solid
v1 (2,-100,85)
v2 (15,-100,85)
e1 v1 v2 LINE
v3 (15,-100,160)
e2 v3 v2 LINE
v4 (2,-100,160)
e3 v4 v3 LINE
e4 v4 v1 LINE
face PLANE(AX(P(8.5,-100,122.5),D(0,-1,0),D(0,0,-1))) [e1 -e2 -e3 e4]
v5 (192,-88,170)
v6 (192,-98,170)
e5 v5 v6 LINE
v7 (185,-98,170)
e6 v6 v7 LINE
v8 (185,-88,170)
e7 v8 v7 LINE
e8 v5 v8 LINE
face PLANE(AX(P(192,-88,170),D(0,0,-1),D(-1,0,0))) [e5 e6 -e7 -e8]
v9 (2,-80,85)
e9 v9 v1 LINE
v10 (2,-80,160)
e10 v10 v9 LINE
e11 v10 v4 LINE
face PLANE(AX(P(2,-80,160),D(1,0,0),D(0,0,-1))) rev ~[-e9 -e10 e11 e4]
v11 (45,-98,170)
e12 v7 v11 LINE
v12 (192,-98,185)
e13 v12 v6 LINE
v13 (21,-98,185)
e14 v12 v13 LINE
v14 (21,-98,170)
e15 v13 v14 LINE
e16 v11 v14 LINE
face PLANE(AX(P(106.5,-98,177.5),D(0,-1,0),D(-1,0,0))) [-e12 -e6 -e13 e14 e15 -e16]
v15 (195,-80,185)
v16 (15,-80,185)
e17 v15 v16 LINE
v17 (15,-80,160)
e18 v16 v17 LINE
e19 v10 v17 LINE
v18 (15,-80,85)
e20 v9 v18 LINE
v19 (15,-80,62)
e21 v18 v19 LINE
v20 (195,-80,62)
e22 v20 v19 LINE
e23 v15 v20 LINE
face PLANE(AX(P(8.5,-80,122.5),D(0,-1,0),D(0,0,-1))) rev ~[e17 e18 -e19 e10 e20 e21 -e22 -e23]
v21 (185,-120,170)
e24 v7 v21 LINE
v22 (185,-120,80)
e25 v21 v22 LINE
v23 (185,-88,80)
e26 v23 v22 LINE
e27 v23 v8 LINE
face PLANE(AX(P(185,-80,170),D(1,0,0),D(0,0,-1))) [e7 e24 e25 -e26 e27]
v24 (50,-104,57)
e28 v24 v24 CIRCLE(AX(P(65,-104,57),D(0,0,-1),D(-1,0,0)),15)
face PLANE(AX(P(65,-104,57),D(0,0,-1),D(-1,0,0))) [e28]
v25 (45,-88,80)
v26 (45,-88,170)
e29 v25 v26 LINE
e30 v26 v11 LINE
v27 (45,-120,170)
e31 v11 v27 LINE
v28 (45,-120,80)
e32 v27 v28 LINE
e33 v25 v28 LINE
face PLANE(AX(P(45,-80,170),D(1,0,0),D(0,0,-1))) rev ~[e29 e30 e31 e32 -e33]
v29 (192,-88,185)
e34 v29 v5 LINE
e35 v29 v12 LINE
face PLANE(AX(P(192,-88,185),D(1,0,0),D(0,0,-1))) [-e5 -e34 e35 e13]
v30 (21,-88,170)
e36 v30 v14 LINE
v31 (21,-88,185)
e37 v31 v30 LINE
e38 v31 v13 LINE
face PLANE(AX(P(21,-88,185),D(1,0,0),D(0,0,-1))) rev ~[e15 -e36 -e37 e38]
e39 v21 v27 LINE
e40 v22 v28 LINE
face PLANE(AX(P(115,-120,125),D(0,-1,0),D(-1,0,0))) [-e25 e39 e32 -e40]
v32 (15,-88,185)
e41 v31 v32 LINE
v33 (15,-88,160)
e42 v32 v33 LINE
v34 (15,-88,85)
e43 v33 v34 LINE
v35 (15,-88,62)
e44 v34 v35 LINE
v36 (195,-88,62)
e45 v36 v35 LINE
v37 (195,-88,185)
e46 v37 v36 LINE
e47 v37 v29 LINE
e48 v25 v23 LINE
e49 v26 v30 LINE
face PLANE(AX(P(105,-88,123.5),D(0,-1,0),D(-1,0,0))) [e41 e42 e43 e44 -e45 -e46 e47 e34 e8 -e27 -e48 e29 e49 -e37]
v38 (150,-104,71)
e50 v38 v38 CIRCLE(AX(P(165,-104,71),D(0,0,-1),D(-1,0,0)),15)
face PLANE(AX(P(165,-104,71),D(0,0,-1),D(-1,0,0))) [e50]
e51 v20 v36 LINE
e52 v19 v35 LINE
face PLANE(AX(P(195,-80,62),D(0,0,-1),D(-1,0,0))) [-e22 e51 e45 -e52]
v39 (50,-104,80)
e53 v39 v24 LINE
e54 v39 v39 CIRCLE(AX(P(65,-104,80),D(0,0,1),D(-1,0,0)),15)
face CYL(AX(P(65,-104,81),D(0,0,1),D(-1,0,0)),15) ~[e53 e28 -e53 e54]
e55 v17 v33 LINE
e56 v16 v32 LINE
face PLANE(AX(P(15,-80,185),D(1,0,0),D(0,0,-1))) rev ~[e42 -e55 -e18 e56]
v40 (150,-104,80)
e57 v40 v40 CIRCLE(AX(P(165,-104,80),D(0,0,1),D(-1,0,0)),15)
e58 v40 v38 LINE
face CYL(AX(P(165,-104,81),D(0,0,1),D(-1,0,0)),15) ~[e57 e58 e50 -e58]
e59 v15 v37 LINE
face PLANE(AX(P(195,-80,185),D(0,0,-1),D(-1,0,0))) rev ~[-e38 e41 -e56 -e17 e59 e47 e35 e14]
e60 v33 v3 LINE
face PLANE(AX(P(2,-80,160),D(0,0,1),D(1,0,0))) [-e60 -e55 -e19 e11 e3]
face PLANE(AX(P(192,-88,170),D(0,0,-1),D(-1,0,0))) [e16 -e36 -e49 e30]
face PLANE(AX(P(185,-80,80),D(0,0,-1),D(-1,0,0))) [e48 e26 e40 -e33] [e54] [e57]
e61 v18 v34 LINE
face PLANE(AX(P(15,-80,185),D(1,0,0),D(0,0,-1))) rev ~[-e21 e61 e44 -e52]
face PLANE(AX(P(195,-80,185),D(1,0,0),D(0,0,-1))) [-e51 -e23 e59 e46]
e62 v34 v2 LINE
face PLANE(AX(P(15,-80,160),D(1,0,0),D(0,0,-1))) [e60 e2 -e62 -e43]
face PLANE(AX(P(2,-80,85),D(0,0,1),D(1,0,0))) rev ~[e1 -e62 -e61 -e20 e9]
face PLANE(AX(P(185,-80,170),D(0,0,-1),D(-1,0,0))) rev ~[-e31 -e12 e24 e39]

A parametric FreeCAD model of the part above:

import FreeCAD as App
import Part
import Sketcher

V = App.Vector
Q = App.Units.Quantity

doc = App.newDocument("Part")
body = doc.addObject("PartDesign::Body", "Body")

# Sketch on XY plane
sketch1 = body.newObject("Sketcher::SketchObject", "Sketch")
sketch1.AttachmentSupport = (doc.getObject("XY_Plane"), [""])
sketch1.MapMode = "FlatFace"
sketch1.addGeometry([
    Part.LineSegment(V(0, 123, 0), V(0, 0, 0)),
    Part.LineSegment(V(0, 0, 0), V(180, 0, 0)),
    Part.LineSegment(V(180, 0, 0), V(180, 123, 0)),
    Part.LineSegment(V(180, 123, 0), V(0, 123, 0)),
], False)
sketch1.addConstraint([
    Sketcher.Constraint("Coincident", 0, 2, 1, 1),
    Sketcher.Constraint("Coincident", 1, 2, 2, 1),
    Sketcher.Constraint("Coincident", 2, 2, 3, 1),
    Sketcher.Constraint("Coincident", 3, 2, 0, 1),
    Sketcher.Constraint("Vertical", 0),
    Sketcher.Constraint("Horizontal", 1),
    Sketcher.Constraint("Vertical", 2),
    Sketcher.Constraint("Horizontal", 3),
    Sketcher.Constraint("Coincident", 0, 2, -1, 1),
    Sketcher.Constraint("DistanceX", 1, 1, 1, 2, Q("180 mm")),
    Sketcher.Constraint("DistanceY", 0, 2, 0, 1, Q("123 mm")),
])
pad1 = body.newObject("PartDesign::Pad", "Pad")
pad1.Profile = sketch1
pad1.Length = 8
body2 = doc.addObject("PartDesign::Body", "Body001")

# Sketch on XY plane
sketch2 = body2.newObject("Sketcher::SketchObject", "Sketch001")
sketch2.AttachmentSupport = (doc.getObject("XY_Plane001"), [""])
sketch2.MapMode = "FlatFace"
sketch2.addGeometry([
    Part.LineSegment(V(10, 105, 0), V(10, 15, 0)),
    Part.LineSegment(V(10, 15, 0), V(150, 15, 0)),
    Part.LineSegment(V(150, 15, 0), V(150, 105, 0)),
    Part.LineSegment(V(150, 105, 0), V(10, 105, 0)),
], False)
sketch2.addConstraint([
    Sketcher.Constraint("Coincident", 0, 2, 1, 1),
    Sketcher.Constraint("Coincident", 1, 2, 2, 1),
    Sketcher.Constraint("Coincident", 2, 2, 3, 1),
    Sketcher.Constraint("Coincident", 3, 2, 0, 1),
    Sketcher.Constraint("Vertical", 0),
    Sketcher.Constraint("Horizontal", 1),
    Sketcher.Constraint("Vertical", 2),
    Sketcher.Constraint("Horizontal", 3),
    Sketcher.Constraint("DistanceX", 1, 1, 1, 2, Q("140 mm")),
    Sketcher.Constraint("DistanceY", 0, 2, 0, 1, Q("90 mm")),
    Sketcher.Constraint("DistanceX", -1, 1, 0, 2, Q("10 mm")),
    Sketcher.Constraint("DistanceY", -1, 1, 0, 2, Q("15 mm")),
])
pad2 = body2.newObject("PartDesign::Pad", "Pad001")
pad2.Profile = sketch2
pad2.Length = 40
body3 = doc.addObject("PartDesign::Body", "Body002")

# Sketch on XZ plane
sketch3 = body3.newObject("Sketcher::SketchObject", "Sketch002")
sketch3.AttachmentSupport = (doc.getObject("XZ_Plane002"), [""])
sketch3.MapMode = "FlatFace"
sketch3.AttachmentOffset = App.Placement(V(0, 0, -104), App.Rotation())
sketch3.addGeometry(Part.Circle(V(30, 24, 0), V(0, 0, 1), 15), False)
sketch3.addConstraint([
    Sketcher.Constraint("Diameter", 0, Q("30 mm")),
    Sketcher.Constraint("DistanceX", -1, 1, 0, 3, Q("30 mm")),
    Sketcher.Constraint("DistanceY", -1, 1, 0, 3, Q("24 mm")),
])
pad3 = body3.newObject("PartDesign::Pad", "Pad002")
pad3.Profile = sketch3
pad3.Length = 10
pad3.Reversed = True
body4 = doc.addObject("PartDesign::Body", "Body003")

# Sketch on XZ plane
sketch4 = body4.newObject("Sketcher::SketchObject", "Sketch003")
sketch4.AttachmentSupport = (doc.getObject("XZ_Plane003"), [""])
sketch4.MapMode = "FlatFace"
sketch4.AttachmentOffset = App.Placement(V(0, 0, -104), App.Rotation())
sketch4.addGeometry(Part.Circle(V(130, 24, 0), V(0, 0, 1), 15), False)
sketch4.addConstraint([
    Sketcher.Constraint("Diameter", 0, Q("30 mm")),
    Sketcher.Constraint("DistanceX", -1, 1, 0, 3, Q("130 mm")),
    Sketcher.Constraint("DistanceY", -1, 1, 0, 3, Q("24 mm")),
])
pad4 = body4.newObject("PartDesign::Pad", "Pad003")
pad4.Profile = sketch4
pad4.Length = 24
pad4.Reversed = True
body5 = doc.addObject("PartDesign::Body", "Body004")

# Sketch on XY plane
sketch5 = body5.newObject("Sketcher::SketchObject", "Sketch004")
sketch5.AttachmentSupport = (doc.getObject("XY_Plane004"), [""])
sketch5.MapMode = "FlatFace"
sketch5.addGeometry([
    Part.LineSegment(V(180, 25, 0), V(193, 25, 0)),
    Part.LineSegment(V(193, 25, 0), V(193, 100, 0)),
    Part.LineSegment(V(193, 100, 0), V(180, 100, 0)),
    Part.LineSegment(V(180, 100, 0), V(180, 25, 0)),
], False)
sketch5.addConstraint([
    Sketcher.Constraint("Coincident", 0, 2, 1, 1),
    Sketcher.Constraint("Coincident", 1, 2, 2, 1),
    Sketcher.Constraint("Coincident", 2, 2, 3, 1),
    Sketcher.Constraint("Coincident", 3, 2, 0, 1),
    Sketcher.Constraint("Horizontal", 0),
    Sketcher.Constraint("Vertical", 1),
    Sketcher.Constraint("Horizontal", 2),
    Sketcher.Constraint("Vertical", 3),
    Sketcher.Constraint("DistanceX", 0, 1, 0, 2, Q("13 mm")),
    Sketcher.Constraint("DistanceY", 1, 1, 1, 2, Q("75 mm")),
    Sketcher.Constraint("DistanceX", -1, 1, 0, 2, Q("193 mm")),
    Sketcher.Constraint("DistanceY", -1, 1, 0, 2, Q("25 mm")),
])
pad5 = body5.newObject("PartDesign::Pad", "Pad004")
pad5.Profile = sketch5
pad5.Length = 20
body6 = doc.addObject("PartDesign::Body", "Body005")

# Sketch on XY plane
sketch6 = body6.newObject("Sketcher::SketchObject", "Sketch005")
sketch6.AttachmentSupport = (doc.getObject("XY_Plane005"), [""])
sketch6.MapMode = "FlatFace"
sketch6.AttachmentOffset = App.Placement(V(0, 0, 8), App.Rotation())
sketch6.addGeometry([
    Part.LineSegment(V(3, 15, 0), V(3, 0, 0)),
    Part.LineSegment(V(3, 0, 0), V(174, 0, 0)),
    Part.LineSegment(V(174, 0, 0), V(174, 15, 0)),
    Part.LineSegment(V(174, 15, 0), V(3, 15, 0)),
], False)
sketch6.addConstraint([
    Sketcher.Constraint("Coincident", 0, 2, 1, 1),
    Sketcher.Constraint("Coincident", 1, 2, 2, 1),
    Sketcher.Constraint("Coincident", 2, 2, 3, 1),
    Sketcher.Constraint("Coincident", 3, 2, 0, 1),
    Sketcher.Constraint("Vertical", 0),
    Sketcher.Constraint("Horizontal", 1),
    Sketcher.Constraint("Vertical", 2),
    Sketcher.Constraint("Horizontal", 3),
    Sketcher.Constraint("PointOnObject", 0, 2, -1),
    Sketcher.Constraint("DistanceX", 1, 1, 1, 2, Q("171 mm")),
    Sketcher.Constraint("DistanceY", 0, 2, 0, 1, Q("15 mm")),
    Sketcher.Constraint("DistanceX", -1, 1, 0, 2, Q("3 mm")),
])
pad6 = body6.newObject("PartDesign::Pad", "Pad005")
pad6.Profile = sketch6
pad6.Length = 10
doc.recompute()

boolean = body6.newObject("PartDesign::Boolean", "Boolean")
boolean.Type = "Fuse"
boolean.addObjects([body])
doc.recompute()

boolean2 = body6.newObject("PartDesign::Boolean", "Boolean001")
boolean2.Type = "Fuse"
boolean2.addObjects([body2])
doc.recompute()

boolean3 = body6.newObject("PartDesign::Boolean", "Boolean002")
boolean3.Type = "Fuse"
boolean3.addObjects([body3])
doc.recompute()

boolean4 = body6.newObject("PartDesign::Boolean", "Boolean003")
boolean4.Type = "Fuse"
boolean4.addObjects([body4])
doc.recompute()

boolean5 = body6.newObject("PartDesign::Boolean", "Boolean004")
boolean5.Type = "Fuse"
boolean5.addObjects([body5])
body7 = doc.addObject("PartDesign::Body", "Body006")
doc.recompute()

body6.Placement = App.Placement(V(0, 0, 0), App.Rotation(V(1, 0, 0), 270))
boolean6 = body7.newObject("PartDesign::Boolean", "Boolean005")
boolean6.Type = "Fuse"
boolean6.addObjects([body6])
body8 = doc.addObject("PartDesign::Body", "Body007")
doc.recompute()

body7.Placement = App.Placement(V(195, -80, 185), App.Rotation(V(0, 0, 1), 180))
boolean7 = body8.newObject("PartDesign::Boolean", "Boolean006")
boolean7.Type = "Fuse"
boolean7.addObjects([body7])

doc.recompute()
